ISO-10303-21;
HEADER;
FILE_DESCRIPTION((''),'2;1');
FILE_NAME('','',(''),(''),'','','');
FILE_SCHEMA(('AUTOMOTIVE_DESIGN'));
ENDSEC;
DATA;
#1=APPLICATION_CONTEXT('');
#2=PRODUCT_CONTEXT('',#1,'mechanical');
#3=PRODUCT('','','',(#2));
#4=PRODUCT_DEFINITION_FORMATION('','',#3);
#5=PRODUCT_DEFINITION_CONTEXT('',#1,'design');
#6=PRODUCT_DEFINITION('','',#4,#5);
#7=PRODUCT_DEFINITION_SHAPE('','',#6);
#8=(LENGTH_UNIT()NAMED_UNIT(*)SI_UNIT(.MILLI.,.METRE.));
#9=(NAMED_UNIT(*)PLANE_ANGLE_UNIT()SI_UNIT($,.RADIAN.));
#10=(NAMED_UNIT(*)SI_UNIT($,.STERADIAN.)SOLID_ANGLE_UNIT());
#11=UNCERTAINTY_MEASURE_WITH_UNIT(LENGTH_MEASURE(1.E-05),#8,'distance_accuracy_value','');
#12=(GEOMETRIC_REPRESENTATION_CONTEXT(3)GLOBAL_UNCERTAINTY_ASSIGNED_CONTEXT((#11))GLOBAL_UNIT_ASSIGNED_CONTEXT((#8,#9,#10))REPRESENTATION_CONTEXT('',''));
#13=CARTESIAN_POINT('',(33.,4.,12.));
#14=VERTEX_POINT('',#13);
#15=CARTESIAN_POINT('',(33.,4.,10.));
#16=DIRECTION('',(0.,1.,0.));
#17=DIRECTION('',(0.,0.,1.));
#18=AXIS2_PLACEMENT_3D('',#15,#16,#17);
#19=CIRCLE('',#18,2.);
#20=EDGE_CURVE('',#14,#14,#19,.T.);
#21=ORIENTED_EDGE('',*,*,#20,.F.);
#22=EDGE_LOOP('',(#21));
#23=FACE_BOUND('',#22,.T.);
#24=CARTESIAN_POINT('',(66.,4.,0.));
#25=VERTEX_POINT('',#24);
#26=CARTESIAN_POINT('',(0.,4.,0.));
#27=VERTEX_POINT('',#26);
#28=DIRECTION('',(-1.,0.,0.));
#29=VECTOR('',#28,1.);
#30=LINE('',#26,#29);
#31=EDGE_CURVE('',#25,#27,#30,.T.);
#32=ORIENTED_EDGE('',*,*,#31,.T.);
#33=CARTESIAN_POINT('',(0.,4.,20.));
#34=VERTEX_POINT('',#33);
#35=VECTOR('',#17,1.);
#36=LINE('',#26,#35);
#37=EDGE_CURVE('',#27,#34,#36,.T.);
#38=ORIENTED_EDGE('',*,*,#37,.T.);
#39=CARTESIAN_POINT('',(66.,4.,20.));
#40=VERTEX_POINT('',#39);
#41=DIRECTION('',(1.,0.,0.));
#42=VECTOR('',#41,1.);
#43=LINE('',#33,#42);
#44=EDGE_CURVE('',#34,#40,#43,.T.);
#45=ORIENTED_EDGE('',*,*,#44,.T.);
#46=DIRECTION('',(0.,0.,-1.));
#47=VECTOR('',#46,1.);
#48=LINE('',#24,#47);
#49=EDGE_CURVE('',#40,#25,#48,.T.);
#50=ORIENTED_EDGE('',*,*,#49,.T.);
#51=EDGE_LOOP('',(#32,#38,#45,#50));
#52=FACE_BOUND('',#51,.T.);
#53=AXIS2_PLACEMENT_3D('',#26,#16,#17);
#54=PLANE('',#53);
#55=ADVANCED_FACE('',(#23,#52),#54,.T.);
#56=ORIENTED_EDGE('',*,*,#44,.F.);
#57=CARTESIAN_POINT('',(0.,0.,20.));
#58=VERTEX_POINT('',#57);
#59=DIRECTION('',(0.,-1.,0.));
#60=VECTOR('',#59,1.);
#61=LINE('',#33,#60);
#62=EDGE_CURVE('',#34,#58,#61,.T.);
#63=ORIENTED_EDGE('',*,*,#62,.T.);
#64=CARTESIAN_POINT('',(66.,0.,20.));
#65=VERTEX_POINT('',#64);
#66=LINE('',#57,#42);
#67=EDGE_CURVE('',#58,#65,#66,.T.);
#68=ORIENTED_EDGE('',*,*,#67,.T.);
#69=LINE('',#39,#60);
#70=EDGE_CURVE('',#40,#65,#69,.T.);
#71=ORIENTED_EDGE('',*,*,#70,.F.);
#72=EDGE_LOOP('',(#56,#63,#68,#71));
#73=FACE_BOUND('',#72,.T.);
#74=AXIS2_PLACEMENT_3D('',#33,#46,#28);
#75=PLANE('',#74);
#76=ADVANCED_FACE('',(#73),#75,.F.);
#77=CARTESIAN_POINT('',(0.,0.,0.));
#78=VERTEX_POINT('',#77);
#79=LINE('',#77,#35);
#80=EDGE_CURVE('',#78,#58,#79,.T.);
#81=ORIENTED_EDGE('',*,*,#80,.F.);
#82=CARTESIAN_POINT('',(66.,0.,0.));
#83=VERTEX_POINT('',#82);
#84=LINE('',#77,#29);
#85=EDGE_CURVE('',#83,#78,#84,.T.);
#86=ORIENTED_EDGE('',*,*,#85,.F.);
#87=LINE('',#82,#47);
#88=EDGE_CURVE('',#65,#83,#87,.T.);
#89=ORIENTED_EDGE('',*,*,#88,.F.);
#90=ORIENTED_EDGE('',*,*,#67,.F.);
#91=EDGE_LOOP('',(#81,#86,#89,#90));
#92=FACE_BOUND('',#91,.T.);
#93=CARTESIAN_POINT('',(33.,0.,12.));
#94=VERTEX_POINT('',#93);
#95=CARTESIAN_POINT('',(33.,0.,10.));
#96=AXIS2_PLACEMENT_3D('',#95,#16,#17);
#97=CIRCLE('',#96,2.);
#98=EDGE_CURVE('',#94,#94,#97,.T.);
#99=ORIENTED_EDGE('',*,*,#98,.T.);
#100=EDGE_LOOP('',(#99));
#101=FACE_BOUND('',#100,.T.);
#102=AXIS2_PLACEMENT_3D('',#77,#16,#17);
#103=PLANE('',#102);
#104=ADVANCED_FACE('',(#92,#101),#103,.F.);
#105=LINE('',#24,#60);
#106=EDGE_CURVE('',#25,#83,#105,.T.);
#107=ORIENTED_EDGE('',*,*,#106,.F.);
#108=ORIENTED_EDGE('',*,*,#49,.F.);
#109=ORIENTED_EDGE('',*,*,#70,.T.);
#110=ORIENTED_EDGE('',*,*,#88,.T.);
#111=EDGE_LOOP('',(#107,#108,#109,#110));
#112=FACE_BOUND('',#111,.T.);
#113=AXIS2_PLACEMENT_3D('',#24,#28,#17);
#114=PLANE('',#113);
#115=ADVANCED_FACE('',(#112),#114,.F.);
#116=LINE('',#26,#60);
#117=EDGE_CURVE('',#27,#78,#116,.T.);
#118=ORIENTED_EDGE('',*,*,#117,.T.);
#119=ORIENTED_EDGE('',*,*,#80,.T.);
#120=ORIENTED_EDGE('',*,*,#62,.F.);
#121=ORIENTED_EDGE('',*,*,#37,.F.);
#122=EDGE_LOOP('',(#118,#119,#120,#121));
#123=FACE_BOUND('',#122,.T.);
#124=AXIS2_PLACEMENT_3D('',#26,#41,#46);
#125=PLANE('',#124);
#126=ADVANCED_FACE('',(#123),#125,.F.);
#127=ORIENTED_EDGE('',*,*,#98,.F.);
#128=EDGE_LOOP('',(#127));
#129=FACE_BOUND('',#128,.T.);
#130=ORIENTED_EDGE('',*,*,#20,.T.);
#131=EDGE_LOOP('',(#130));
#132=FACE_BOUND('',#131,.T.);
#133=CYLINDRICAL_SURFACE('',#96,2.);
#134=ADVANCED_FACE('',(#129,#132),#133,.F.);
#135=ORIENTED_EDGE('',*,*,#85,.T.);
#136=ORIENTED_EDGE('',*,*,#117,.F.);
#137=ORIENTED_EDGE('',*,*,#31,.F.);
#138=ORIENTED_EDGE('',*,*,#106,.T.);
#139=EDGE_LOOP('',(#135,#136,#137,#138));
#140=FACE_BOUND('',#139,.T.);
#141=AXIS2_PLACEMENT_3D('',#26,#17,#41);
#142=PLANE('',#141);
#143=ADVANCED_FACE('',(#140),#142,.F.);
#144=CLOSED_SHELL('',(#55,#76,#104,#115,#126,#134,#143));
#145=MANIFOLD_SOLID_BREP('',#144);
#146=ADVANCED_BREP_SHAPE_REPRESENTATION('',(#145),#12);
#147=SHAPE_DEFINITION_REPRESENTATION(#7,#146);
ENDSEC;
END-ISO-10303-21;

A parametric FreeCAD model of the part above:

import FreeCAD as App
import Part
import Sketcher


def add_polygon(sketch, points):
    """Adds a closed chain of lines whose ends are joined by coincident constraints."""
    first, n = sketch.GeometryCount, len(points)
    for a, b in zip(points, points[1:] + points[:1]):
        sketch.addGeometry(Part.LineSegment(App.Vector(*a, 0), App.Vector(*b, 0)), False)
    for i in range(n):
        sketch.addConstraint(Sketcher.Constraint("Coincident", first + i, 2, first + (i + 1) % n, 1))

doc = App.newDocument("Part")
body = doc.addObject("PartDesign::Body", "Body")

sketch1 = body.newObject("Sketcher::SketchObject", "Sketch")
sketch1.AttachmentSupport = (doc.getObject("XZ_Plane"), [""])
sketch1.MapMode = "FlatFace"
add_polygon(sketch1, [(0, 0), (0, 20), (66, 20), (66, 0)])
sketch1.addConstraint([
    Sketcher.Constraint("Vertical", 0),
    Sketcher.Constraint("Horizontal", 1),
    Sketcher.Constraint("Vertical", 2),
    Sketcher.Constraint("Horizontal", 3),
    Sketcher.Constraint("Coincident", 3, 2, -1, 1),
    Sketcher.Constraint("DistanceX", 1, 1, 1, 2, 66.0),
    Sketcher.Constraint("DistanceY", 0, 1, 0, 2, 20.0),
])
pad1 = body.newObject("PartDesign::Pad", "Pad")
pad1.Profile = sketch1
pad1.Length = 4
pad1.Reversed = True

sketch2 = body.newObject("Sketcher::SketchObject", "Sketch001")
sketch2.AttachmentSupport = (doc.getObject("XZ_Plane"), [""])
sketch2.MapMode = "FlatFace"
sketch2.AttachmentOffset = App.Placement(App.Vector(0, 0, -4), App.Rotation())
sketch2.addGeometry(Part.Circle(App.Vector(33, 10, 0), App.Vector(0, 0, 1), 2), False)
sketch2.addConstraint([
    Sketcher.Constraint("Diameter", 0, 4.0),
    Sketcher.Constraint("DistanceX", -1, 1, 0, 3, 33.0),
    Sketcher.Constraint("DistanceY", -1, 1, 0, 3, 10.0),
])
pocket1 = body.newObject("PartDesign::Pocket", "Pocket")
pocket1.Profile = sketch2
pocket1.Type = "ThroughAll"
pocket1.Reversed = True

doc.recompute()
